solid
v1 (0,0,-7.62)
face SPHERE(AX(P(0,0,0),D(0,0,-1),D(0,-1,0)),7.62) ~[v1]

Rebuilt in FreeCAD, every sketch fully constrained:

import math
import FreeCAD as App
import Part
import Sketcher

V = App.Vector
Q = App.Units.Quantity

doc = App.newDocument("Part")
body = doc.addObject("PartDesign::Body", "Body")

sketch1 = doc.addObject("Sketcher::SketchObject", "Sketch")
body.addObject(sketch1)
sketch1.AttachmentSupport = (doc.YZ_Plane, [""])
sketch1.MapMode = "FlatFace"
sketch1.addGeometry(Part.LineSegment(V(0, -7.62, 0), V(0, 7.62, 0)), False)
sketch1.addGeometry(Part.ArcOfCircle(Part.Circle(V(0, 0, 0), V(0, 0, 1), 7.62), math.radians(90), math.radians(270)), False)
sketch1.addConstraint(Sketcher.Constraint("Coincident", 0, 1, 1, 2))
sketch1.addConstraint(Sketcher.Constraint("Coincident", 1, 1, 0, 2))
sketch1.addConstraint(Sketcher.Constraint("Vertical", 0))
sketch1.addConstraint(Sketcher.Constraint("Coincident", 1, 3, -1, 1))
sketch1.addConstraint(Sketcher.Constraint("PointOnObject", 0, 1, -2))
sketch1.addConstraint(Sketcher.Constraint("Radius", 1, Q("0.3 in")))
revolution = doc.addObject("PartDesign::Revolution", "Revolution")
body.addObject(revolution)
revolution.Profile = sketch1
revolution.ReferenceAxis = (sketch1, ["V_Axis"])
revolution.Angle = 360

doc.recompute()
